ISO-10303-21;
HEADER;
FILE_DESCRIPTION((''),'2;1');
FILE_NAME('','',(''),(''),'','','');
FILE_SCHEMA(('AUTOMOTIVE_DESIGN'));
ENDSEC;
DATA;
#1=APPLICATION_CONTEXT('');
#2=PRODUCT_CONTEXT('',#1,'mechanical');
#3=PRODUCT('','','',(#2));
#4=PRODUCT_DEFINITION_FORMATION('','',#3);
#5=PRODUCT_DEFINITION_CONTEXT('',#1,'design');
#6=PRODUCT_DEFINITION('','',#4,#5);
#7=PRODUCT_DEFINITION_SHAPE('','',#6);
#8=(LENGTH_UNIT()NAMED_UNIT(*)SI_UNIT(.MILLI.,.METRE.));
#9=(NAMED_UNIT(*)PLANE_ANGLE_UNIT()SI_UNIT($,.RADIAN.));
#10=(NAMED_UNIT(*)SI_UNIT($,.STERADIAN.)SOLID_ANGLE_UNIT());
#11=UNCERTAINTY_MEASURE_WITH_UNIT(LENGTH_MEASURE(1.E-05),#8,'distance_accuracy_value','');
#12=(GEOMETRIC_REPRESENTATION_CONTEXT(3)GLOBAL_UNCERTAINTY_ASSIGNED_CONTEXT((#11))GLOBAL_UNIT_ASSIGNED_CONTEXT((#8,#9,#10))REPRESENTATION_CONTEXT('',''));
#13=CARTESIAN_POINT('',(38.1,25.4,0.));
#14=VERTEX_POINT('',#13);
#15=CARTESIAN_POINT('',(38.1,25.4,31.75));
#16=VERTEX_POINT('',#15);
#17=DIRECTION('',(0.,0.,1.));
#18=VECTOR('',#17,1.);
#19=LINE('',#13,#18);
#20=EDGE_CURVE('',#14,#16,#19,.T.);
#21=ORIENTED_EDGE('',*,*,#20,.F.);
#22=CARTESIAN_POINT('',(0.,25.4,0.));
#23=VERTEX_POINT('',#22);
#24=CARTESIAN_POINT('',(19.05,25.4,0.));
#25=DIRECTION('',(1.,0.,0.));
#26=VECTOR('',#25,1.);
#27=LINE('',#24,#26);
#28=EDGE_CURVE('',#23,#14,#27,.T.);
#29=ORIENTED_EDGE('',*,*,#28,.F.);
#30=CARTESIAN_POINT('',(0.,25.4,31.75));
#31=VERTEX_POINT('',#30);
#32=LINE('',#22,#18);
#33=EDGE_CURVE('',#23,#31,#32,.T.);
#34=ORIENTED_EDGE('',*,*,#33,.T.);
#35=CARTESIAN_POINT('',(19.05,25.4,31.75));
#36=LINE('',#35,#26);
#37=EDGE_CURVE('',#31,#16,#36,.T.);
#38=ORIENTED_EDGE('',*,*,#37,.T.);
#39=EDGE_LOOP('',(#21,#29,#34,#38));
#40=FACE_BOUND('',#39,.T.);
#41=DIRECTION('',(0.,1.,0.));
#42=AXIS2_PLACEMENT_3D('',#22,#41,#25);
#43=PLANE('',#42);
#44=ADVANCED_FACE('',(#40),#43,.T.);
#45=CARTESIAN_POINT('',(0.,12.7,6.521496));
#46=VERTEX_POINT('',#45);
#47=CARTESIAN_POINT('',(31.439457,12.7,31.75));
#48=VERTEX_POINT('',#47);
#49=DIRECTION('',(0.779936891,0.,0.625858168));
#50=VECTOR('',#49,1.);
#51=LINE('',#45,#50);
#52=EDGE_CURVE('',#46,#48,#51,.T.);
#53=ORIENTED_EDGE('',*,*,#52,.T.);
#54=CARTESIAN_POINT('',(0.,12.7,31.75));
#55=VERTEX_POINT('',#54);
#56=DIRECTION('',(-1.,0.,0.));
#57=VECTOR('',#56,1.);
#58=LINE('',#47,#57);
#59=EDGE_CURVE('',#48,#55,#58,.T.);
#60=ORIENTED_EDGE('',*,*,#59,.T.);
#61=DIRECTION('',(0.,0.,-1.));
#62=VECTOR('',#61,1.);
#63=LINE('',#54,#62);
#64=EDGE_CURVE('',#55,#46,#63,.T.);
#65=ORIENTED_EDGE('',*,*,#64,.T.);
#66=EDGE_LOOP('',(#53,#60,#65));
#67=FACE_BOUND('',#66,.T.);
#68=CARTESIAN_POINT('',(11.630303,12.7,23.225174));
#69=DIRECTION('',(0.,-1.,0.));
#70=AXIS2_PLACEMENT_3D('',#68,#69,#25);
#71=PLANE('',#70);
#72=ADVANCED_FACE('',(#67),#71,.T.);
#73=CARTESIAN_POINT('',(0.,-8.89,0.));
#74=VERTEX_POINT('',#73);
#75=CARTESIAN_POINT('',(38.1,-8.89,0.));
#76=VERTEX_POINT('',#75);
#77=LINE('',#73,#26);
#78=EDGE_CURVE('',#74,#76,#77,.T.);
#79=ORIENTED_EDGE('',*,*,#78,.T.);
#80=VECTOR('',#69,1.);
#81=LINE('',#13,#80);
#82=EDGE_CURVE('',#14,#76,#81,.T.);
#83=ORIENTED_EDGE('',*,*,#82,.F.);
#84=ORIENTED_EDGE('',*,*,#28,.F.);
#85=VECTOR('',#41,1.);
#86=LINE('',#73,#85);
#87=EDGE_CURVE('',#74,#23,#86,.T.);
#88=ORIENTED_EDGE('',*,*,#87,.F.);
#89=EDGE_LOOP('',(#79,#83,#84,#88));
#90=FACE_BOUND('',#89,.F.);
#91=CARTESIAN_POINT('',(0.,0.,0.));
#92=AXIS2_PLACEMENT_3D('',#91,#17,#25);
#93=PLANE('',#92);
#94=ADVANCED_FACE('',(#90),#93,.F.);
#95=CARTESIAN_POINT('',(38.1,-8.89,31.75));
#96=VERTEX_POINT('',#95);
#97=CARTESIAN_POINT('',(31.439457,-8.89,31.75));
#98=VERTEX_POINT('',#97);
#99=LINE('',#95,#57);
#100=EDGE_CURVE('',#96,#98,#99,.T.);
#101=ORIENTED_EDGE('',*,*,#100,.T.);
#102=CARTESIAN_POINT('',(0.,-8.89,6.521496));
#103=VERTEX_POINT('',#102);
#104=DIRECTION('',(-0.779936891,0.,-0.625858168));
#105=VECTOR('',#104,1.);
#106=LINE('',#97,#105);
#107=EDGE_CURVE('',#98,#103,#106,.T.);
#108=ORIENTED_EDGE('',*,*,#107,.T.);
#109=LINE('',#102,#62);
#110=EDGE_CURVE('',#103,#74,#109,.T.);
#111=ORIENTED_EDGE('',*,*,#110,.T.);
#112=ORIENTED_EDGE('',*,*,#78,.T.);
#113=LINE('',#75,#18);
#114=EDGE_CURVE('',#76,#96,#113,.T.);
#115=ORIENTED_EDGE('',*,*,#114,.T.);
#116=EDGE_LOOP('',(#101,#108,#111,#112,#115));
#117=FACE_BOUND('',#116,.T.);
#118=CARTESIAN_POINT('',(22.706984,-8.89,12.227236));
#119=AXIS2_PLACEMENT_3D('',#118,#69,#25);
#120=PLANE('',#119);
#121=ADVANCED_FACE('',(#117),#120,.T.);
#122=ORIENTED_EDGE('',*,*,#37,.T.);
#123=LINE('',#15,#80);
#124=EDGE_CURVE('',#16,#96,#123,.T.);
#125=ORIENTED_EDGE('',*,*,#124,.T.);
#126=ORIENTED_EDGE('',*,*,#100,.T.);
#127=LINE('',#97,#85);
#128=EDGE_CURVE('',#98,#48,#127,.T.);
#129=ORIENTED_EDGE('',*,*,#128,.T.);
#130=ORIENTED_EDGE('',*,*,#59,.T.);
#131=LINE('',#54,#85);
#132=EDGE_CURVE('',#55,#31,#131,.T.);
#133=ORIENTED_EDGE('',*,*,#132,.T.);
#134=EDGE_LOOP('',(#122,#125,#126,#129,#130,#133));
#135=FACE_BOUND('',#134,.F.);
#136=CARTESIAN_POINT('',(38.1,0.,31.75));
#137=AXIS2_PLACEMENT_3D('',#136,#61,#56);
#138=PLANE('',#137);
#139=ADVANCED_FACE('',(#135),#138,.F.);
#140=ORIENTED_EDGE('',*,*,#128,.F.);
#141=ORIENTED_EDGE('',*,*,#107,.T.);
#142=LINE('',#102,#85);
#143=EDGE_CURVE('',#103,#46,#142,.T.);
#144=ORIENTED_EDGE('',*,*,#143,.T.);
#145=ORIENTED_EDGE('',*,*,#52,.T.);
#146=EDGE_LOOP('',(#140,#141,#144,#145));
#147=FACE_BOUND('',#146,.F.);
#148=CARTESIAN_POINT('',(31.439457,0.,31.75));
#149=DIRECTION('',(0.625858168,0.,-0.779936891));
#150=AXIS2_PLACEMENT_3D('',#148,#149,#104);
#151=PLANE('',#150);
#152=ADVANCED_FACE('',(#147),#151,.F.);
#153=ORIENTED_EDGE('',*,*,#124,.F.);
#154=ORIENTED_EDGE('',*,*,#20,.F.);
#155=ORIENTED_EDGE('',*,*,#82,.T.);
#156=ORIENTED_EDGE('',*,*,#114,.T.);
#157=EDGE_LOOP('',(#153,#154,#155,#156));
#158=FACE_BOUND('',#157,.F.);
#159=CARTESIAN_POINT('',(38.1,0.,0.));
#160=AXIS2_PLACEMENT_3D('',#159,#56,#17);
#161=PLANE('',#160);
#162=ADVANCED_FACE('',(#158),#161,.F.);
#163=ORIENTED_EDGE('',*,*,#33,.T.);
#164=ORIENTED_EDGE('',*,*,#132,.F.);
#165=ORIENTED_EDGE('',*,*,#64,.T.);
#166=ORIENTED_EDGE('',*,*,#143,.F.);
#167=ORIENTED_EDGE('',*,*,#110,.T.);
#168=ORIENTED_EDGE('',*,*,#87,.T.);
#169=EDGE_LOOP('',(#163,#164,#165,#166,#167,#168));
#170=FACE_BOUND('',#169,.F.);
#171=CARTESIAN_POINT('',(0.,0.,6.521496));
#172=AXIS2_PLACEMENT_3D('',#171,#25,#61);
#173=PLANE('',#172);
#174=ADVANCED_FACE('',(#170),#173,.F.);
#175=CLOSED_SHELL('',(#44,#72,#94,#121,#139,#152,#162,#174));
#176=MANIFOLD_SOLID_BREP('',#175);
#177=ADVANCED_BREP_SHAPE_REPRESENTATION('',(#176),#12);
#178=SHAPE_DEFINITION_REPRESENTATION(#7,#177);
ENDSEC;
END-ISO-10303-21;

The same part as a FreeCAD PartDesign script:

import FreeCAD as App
import Part
import Sketcher

V = App.Vector
Q = App.Units.Quantity

doc = App.newDocument("Part")
body = doc.addObject("PartDesign::Body", "Body")

sketch1 = body.newObject("Sketcher::SketchObject", "Sketch")
sketch1.AttachmentSupport = (doc.getObject("XY_Plane"), [""])
sketch1.MapMode = "FlatFace"
sketch1.addGeometry([
    Part.LineSegment(V(0, 25, 0), V(0, 0, 0)),
    Part.LineSegment(V(0, 0, 0), V(38, 0, 0)),
    Part.LineSegment(V(38, 0, 0), V(38, 25, 0)),
    Part.LineSegment(V(38, 25, 0), V(0, 25, 0)),
], False)
sketch1.addConstraint([
    Sketcher.Constraint("Coincident", 0, 2, 1, 1),
    Sketcher.Constraint("Coincident", 1, 2, 2, 1),
    Sketcher.Constraint("Coincident", 2, 2, 3, 1),
    Sketcher.Constraint("Coincident", 3, 2, 0, 1),
    Sketcher.Constraint("Vertical", 0),
    Sketcher.Constraint("Horizontal", 1),
    Sketcher.Constraint("Vertical", 2),
    Sketcher.Constraint("Horizontal", 3),
    Sketcher.Constraint("Coincident", 0, 2, -1, 1),
    Sketcher.Constraint("DistanceY", 0, 2, 0, 1, Q("1 in")),
    Sketcher.Constraint("DistanceX", 1, 1, 1, 2, Q("1.5 in")),
])
pad1 = body.newObject("PartDesign::Pad", "Pad")
pad1.Profile = sketch1
pad1.Length = Q("1.25 in")

sketch2 = body.newObject("Sketcher::SketchObject", "Sketch001")
sketch2.AttachmentSupport = (doc.getObject("XZ_Plane"), [""])
sketch2.MapMode = "FlatFace"
sketch2.addGeometry([
    Part.LineSegment(V(0, 32, 0), V(0, 7, 0)),
    Part.LineSegment(V(0, 7, 0), V(31, 32, 0)),
    Part.LineSegment(V(31, 32, 0), V(0, 32, 0)),
], False)
sketch2.addConstraint([
    Sketcher.Constraint("Coincident", 0, 2, 1, 1),
    Sketcher.Constraint("Coincident", 1, 2, 2, 1),
    Sketcher.Constraint("Coincident", 2, 2, 0, 1),
    Sketcher.Constraint("Vertical", 0),
    Sketcher.Constraint("Horizontal", 2),
    Sketcher.Constraint("PointOnObject", 0, 2, -2),
    Sketcher.Constraint("DistanceY", -1, 1, 1, 2, Q("1.25 in")),
    Sketcher.Constraint("DistanceX", 2, 2, 2, 1, Q("31.439457 mm")),
    Sketcher.Constraint("DistanceY", 0, 2, 0, 1, Q("25.228504 mm")),
])
pocket1 = body.newObject("PartDesign::Pocket", "Pocket")
pocket1.Profile = sketch2
pocket1.Length = Q("0.5 in")

sketch3 = body.newObject("Sketcher::SketchObject", "Sketch002")
sketch3.AttachmentSupport = (doc.getObject("XZ_Plane"), [""])
sketch3.MapMode = "FlatFace"
sketch3.addGeometry([
    Part.LineSegment(V(0, 0, 0), V(38, 0, 0)),
    Part.LineSegment(V(38, 0, 0), V(38, 32, 0)),
    Part.LineSegment(V(38, 32, 0), V(31, 32, 0)),
    Part.LineSegment(V(31, 32, 0), V(0, 7, 0)),
    Part.LineSegment(V(0, 7, 0), V(0, 0, 0)),
], False)
sketch3.addConstraint([
    Sketcher.Constraint("Coincident", 0, 2, 1, 1),
    Sketcher.Constraint("Coincident", 1, 2, 2, 1),
    Sketcher.Constraint("Coincident", 2, 2, 3, 1),
    Sketcher.Constraint("Coincident", 3, 2, 4, 1),
    Sketcher.Constraint("Coincident", 4, 2, 0, 1),
    Sketcher.Constraint("Horizontal", 0),
    Sketcher.Constraint("Vertical", 1),
    Sketcher.Constraint("Horizontal", 2),
    Sketcher.Constraint("Vertical", 4),
    Sketcher.Constraint("Coincident", 4, 2, -1, 1),
    Sketcher.Constraint("DistanceX", 0, 1, 0, 2, Q("1.5 in")),
    Sketcher.Constraint("DistanceY", 1, 1, 1, 2, Q("1.25 in")),
    Sketcher.Constraint("DistanceX", 2, 2, 2, 1, Q("6.660543 mm")),
    Sketcher.Constraint("DistanceY", 4, 2, 4, 1, Q("6.521496 mm")),
])
pad2 = body.newObject("PartDesign::Pad", "Pad001")
pad2.Profile = sketch3
pad2.Length = Q("0.35 in")

doc.recompute()
